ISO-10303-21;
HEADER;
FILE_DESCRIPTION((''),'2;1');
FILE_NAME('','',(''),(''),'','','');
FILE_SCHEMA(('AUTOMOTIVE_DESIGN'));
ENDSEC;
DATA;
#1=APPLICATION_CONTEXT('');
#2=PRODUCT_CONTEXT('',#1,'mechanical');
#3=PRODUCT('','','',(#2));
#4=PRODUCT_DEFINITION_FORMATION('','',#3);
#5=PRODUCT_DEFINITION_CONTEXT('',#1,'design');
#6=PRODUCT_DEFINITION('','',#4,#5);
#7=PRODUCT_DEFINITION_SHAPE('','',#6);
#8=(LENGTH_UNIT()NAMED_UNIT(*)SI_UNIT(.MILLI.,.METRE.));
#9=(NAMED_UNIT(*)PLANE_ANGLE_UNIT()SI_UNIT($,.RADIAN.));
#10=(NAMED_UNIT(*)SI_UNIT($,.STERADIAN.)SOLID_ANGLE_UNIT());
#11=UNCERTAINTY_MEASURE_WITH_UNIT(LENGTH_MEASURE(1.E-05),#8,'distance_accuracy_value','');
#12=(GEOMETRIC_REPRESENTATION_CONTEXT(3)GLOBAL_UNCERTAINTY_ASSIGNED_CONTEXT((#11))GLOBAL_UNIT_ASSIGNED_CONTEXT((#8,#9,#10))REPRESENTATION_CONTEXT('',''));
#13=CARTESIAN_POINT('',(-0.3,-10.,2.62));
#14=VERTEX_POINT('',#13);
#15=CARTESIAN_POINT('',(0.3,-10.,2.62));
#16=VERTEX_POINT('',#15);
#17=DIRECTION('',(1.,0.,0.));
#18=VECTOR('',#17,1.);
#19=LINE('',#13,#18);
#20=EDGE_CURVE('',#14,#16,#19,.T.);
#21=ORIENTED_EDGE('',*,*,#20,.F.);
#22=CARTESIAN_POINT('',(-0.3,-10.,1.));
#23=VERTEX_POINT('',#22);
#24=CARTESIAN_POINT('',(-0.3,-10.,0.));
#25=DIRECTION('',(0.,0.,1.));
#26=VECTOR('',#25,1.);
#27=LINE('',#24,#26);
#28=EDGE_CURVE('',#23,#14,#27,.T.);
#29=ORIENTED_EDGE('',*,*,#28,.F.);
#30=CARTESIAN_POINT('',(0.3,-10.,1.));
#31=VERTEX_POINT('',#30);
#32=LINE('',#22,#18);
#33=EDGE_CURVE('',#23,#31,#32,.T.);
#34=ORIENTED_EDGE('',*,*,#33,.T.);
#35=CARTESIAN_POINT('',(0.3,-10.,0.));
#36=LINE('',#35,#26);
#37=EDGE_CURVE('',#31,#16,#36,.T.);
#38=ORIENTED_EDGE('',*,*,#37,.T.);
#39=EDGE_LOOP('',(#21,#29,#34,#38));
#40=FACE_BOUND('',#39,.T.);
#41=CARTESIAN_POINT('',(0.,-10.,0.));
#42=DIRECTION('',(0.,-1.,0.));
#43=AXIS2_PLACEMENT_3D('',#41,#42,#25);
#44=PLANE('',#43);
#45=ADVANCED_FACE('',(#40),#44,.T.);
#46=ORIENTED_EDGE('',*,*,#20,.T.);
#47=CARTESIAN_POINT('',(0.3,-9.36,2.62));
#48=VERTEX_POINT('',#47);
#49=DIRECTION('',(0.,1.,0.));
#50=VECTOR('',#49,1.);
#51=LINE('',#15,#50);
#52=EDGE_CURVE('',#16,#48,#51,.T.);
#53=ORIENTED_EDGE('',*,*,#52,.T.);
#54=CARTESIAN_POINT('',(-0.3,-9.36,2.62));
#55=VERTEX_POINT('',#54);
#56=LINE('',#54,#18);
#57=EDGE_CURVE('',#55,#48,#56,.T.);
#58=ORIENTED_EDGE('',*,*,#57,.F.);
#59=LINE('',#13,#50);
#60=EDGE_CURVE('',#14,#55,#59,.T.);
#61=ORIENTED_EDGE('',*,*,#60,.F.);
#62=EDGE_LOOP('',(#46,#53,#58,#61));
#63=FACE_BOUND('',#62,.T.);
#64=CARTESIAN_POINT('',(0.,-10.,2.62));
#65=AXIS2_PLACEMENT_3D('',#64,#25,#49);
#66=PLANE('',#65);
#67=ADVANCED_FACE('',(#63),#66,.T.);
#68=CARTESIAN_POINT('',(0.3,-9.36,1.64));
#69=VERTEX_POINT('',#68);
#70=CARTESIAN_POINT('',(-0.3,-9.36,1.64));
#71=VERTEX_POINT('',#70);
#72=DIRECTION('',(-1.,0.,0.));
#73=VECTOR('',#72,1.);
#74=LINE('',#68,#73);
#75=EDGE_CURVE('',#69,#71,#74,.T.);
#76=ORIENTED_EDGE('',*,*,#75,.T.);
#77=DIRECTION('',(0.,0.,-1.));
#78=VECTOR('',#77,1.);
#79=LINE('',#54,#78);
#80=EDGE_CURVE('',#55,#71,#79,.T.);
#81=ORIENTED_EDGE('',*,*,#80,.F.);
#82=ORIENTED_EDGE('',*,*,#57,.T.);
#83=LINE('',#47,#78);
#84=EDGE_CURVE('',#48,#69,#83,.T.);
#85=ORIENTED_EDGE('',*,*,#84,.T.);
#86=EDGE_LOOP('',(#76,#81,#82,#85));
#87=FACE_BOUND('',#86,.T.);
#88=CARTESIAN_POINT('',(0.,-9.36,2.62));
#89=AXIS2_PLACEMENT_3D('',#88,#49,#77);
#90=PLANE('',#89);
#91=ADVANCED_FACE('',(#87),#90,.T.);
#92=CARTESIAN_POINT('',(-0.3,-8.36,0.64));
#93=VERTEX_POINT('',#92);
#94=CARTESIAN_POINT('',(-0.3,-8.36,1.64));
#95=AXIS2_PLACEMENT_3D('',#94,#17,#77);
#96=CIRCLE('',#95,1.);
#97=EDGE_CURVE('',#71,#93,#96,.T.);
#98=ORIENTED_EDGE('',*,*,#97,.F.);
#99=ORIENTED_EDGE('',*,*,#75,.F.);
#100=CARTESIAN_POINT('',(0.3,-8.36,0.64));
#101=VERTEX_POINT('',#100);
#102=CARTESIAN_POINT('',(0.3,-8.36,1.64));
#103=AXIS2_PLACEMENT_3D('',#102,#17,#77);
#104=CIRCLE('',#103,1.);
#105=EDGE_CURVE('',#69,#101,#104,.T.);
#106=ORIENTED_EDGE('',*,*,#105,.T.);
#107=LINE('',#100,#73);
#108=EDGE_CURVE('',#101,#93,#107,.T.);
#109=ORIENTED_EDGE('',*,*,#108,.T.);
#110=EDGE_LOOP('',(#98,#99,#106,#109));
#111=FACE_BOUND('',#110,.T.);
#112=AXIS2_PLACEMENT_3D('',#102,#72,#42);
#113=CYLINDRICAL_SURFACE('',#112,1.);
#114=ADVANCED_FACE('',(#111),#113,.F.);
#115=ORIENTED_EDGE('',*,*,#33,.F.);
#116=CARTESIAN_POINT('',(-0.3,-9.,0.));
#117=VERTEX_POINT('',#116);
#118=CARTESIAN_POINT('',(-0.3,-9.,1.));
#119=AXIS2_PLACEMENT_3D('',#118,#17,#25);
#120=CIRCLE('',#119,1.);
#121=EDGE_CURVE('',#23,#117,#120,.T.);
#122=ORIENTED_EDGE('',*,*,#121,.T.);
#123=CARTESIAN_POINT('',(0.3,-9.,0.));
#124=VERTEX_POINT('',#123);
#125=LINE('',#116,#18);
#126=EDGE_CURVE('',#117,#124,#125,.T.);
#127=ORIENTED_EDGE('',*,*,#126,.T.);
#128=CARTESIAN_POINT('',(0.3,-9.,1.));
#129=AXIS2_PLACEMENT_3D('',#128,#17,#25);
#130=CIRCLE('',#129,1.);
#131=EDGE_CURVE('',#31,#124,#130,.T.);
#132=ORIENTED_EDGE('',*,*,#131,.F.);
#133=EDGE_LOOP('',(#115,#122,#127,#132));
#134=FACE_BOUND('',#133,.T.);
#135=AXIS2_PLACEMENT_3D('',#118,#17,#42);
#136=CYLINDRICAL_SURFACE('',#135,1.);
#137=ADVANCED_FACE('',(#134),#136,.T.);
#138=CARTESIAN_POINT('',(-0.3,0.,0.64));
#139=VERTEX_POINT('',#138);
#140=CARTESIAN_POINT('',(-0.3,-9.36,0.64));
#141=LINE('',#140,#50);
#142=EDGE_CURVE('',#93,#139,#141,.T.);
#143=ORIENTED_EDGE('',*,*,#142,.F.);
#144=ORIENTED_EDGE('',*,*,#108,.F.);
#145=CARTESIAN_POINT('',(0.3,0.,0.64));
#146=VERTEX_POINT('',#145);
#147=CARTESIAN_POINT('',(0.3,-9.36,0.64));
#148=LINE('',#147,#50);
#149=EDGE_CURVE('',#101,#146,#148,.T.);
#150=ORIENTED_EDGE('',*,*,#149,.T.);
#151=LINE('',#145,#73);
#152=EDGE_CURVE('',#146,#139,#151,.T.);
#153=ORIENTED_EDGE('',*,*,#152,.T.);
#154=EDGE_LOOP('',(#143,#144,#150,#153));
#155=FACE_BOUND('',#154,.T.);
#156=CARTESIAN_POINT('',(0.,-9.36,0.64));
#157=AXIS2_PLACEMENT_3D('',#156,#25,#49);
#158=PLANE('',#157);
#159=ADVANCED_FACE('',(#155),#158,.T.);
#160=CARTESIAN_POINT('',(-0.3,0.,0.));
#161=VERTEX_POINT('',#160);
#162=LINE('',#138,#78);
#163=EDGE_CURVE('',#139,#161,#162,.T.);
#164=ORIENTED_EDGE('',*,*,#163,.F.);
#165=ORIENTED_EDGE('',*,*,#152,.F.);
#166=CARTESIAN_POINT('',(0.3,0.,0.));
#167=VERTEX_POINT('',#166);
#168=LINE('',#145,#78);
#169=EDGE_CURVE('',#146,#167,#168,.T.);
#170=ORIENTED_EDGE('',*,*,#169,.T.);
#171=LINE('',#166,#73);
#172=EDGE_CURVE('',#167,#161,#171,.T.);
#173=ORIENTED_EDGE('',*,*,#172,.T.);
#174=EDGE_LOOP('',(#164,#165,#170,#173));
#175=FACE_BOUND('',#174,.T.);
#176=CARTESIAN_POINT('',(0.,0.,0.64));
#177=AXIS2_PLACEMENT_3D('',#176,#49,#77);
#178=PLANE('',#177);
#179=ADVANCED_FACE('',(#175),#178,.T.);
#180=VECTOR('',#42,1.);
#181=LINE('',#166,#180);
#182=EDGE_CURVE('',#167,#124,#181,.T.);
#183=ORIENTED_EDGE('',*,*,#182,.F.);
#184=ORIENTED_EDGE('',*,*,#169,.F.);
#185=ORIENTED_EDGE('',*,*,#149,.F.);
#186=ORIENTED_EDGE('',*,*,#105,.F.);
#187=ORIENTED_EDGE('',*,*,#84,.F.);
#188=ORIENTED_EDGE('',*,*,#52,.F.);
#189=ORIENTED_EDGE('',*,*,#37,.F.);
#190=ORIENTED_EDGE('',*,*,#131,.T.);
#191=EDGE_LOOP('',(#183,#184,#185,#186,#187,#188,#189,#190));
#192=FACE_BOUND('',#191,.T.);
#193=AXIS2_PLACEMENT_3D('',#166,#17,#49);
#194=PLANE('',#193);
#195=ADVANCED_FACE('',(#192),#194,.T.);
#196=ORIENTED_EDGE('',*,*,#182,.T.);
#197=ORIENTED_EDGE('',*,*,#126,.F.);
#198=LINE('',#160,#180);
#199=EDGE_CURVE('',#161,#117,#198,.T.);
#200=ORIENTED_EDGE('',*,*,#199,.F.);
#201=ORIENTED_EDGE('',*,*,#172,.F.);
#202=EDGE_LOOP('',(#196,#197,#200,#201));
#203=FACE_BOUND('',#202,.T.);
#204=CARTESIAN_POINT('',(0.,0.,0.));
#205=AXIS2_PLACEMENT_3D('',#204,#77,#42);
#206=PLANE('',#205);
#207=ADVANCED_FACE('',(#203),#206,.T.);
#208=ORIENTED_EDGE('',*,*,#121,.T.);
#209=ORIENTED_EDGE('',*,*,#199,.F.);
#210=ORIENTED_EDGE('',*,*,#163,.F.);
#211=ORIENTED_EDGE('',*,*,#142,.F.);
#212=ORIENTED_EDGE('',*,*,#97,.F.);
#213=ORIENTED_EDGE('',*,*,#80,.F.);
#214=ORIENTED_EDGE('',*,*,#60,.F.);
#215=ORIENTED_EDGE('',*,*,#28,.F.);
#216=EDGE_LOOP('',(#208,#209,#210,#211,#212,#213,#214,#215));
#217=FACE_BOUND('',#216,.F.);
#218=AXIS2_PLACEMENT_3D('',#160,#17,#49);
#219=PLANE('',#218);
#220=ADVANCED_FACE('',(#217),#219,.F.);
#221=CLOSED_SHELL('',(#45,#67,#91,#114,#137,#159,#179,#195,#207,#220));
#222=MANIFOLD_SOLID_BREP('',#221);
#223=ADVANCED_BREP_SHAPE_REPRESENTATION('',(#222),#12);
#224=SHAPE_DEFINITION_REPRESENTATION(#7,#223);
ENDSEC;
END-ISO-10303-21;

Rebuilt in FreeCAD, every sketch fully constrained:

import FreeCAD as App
import Part
import Sketcher


def edges_at(feature, points):
    """Names of the edges that pass closest to the given points."""
    edges = feature.Shape.Edges
    near = lambda p: min(range(len(edges)), key=lambda i: edges[i].distToShape(Part.Vertex(*p))[0])
    return sorted({f"Edge{near(p) + 1}" for p in points})


def add_polygon(sketch, points):
    """Adds a closed chain of lines whose ends are joined by coincident constraints."""
    first, n = sketch.GeometryCount, len(points)
    for a, b in zip(points, points[1:] + points[:1]):
        sketch.addGeometry(Part.LineSegment(App.Vector(*a, 0), App.Vector(*b, 0)), False)
    for i in range(n):
        sketch.addConstraint(Sketcher.Constraint("Coincident", first + i, 2, first + (i + 1) % n, 1))

doc = App.newDocument("Part")
body = doc.addObject("PartDesign::Body", "Body")

sketch1 = doc.addObject("Sketcher::SketchObject", "Sketch")
body.addObject(sketch1)
sketch1.AttachmentSupport = (doc.YZ_Plane, [""])
sketch1.MapMode = "FlatFace"
add_polygon(sketch1, [(-9.36, 0.64), (-9.36, 2.62), (-10, 2.62), (-10, 0), (0, 0), (0, 0.64)])
sketch1.addConstraint([
    Sketcher.Constraint("Vertical", 0),
    Sketcher.Constraint("Horizontal", 1),
    Sketcher.Constraint("Vertical", 2),
    Sketcher.Constraint("Horizontal", 3),
    Sketcher.Constraint("Vertical", 4),
    Sketcher.Constraint("Horizontal", 5),
    Sketcher.Constraint("Coincident", 3, 2, -1, 1),
    Sketcher.Constraint("Equal", 1, 4),
    Sketcher.Constraint("DistanceX", 3, 1, 3, 2, 10.0),
    Sketcher.Constraint("DistanceX", 1, 2, 1, 1, 0.64),
    Sketcher.Constraint("DistanceY", 0, 1, 0, 2, 1.98),
])
pad1 = doc.addObject("PartDesign::Pad", "Pad")
body.addObject(pad1)
pad1.Profile = sketch1
pad1.Length = 0.6
pad1.Midplane = True
doc.recompute()

fillet = doc.addObject("PartDesign::Fillet", "Fillet")
body.addObject(fillet)
fillet.Base = (pad1, edges_at(pad1, [(0, -9.36, 0.64), (0, -10, 0)]))
fillet.Radius = 1

doc.recompute()
